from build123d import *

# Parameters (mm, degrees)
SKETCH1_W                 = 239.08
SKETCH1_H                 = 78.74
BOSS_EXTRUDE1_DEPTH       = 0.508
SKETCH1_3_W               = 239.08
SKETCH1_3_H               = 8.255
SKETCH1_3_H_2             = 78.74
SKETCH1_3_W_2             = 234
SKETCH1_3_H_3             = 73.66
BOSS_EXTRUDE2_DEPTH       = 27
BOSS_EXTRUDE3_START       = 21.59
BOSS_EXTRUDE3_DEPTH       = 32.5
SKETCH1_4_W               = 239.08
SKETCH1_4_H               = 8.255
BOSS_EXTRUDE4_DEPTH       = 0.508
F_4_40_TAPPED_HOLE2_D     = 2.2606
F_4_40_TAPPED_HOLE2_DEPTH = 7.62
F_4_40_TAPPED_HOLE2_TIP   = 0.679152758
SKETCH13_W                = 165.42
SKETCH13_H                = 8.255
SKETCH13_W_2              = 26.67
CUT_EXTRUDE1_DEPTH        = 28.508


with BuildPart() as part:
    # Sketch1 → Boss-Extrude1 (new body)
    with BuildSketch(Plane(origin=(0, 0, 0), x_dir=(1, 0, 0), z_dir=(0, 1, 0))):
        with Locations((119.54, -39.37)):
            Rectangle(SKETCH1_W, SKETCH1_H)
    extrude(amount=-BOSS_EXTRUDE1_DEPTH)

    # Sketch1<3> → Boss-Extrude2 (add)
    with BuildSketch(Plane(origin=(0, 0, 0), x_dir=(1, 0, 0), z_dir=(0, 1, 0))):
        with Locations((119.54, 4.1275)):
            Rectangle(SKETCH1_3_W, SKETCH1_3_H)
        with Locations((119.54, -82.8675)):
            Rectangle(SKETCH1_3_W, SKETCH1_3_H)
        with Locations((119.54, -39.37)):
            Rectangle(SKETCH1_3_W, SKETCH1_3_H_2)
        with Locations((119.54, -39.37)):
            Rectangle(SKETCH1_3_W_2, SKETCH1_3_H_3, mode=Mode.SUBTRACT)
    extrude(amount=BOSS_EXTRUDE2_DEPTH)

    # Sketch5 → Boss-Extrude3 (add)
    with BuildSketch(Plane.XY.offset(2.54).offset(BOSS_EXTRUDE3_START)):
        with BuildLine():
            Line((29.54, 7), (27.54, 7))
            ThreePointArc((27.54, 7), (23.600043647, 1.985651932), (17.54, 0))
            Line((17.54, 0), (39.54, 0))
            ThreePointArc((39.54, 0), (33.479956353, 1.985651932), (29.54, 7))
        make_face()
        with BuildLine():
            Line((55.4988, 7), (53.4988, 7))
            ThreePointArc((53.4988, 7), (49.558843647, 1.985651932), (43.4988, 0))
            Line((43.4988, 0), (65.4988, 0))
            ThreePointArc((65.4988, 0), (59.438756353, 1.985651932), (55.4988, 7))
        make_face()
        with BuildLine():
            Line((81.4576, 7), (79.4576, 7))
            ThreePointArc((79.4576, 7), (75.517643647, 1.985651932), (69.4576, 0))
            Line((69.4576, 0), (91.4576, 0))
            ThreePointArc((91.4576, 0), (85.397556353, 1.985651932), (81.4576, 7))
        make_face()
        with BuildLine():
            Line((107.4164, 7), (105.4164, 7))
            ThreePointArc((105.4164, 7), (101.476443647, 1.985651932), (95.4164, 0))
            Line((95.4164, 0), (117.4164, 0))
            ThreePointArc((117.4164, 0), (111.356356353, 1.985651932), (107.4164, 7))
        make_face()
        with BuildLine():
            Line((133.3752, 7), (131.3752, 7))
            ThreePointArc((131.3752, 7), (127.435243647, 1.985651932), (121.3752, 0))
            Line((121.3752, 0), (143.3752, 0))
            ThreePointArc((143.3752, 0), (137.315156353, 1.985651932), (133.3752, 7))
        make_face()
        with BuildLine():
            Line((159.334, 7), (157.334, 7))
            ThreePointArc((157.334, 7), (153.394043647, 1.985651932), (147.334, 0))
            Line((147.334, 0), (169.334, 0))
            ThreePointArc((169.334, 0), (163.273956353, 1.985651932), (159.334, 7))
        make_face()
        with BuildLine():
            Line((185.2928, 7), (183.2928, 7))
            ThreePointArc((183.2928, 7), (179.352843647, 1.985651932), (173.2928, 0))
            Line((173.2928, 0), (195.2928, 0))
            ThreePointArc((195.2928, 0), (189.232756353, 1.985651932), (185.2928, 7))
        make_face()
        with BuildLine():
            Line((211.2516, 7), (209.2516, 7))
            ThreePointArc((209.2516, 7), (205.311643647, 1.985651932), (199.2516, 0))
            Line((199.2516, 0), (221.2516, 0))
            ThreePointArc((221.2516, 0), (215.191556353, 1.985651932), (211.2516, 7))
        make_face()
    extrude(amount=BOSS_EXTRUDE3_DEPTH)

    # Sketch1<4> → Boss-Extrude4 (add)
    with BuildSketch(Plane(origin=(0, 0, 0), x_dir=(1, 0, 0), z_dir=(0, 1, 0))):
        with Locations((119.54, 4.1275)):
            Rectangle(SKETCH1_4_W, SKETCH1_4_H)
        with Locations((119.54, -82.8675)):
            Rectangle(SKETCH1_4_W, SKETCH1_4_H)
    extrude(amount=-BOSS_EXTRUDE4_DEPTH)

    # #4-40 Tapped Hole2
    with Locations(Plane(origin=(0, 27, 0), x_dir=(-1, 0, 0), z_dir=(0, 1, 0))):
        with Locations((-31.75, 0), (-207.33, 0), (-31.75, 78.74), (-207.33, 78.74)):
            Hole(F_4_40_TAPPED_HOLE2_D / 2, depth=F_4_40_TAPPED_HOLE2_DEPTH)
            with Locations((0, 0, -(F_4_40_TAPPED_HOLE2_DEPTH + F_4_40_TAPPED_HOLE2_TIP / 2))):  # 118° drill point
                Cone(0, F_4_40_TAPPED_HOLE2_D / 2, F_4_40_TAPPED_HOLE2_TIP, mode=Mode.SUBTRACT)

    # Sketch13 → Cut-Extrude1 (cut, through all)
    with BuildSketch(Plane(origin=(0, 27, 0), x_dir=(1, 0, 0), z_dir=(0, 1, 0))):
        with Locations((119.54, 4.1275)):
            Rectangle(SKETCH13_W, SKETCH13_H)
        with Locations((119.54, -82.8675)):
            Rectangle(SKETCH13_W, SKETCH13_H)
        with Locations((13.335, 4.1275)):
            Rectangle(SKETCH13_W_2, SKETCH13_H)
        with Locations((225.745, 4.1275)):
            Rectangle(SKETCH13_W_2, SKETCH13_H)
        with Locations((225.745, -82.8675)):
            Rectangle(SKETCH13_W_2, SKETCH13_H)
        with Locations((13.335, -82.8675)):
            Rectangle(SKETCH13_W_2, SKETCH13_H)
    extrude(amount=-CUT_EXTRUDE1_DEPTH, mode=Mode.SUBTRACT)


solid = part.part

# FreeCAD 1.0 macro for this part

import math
import FreeCAD as App
import Part
import Sketcher
from FreeCAD import Vector
Q = App.Units.Quantity


def add_polygon(sketch, points):
    """Adds a closed chain of lines whose ends are joined by coincident constraints."""
    first, n = sketch.GeometryCount, len(points)
    for a, b in zip(points, points[1:] + points[:1]):
        sketch.addGeometry(Part.LineSegment(App.Vector(*a, 0), App.Vector(*b, 0)), False)
    for i in range(n):
        sketch.addConstraint(Sketcher.Constraint("Coincident", first + i, 2, first + (i + 1) % n, 1))

doc = App.newDocument("Part")
body = doc.addObject("PartDesign::Body", "Body")

sketch1 = body.newObject("Sketcher::SketchObject", "Sketch")
sketch1.AttachmentSupport = (doc.getObject("XZ_Plane"), [""])
sketch1.MapMode = "FlatFace"
add_polygon(sketch1, [(0, 0), (0, 79), (239, 79), (239, 0)])
sketch1.addConstraint(Sketcher.Constraint("Vertical", 0))
sketch1.addConstraint(Sketcher.Constraint("Horizontal", 1))
sketch1.addConstraint(Sketcher.Constraint("Vertical", 2))
sketch1.addConstraint(Sketcher.Constraint("Horizontal", 3))
sketch1.addConstraint(Sketcher.Constraint("Coincident", 3, 2, -1, 1))
sketch1.addConstraint(Sketcher.Constraint("DistanceY", 0, 1, 0, 2, Q("3.1 in")))
sketch1.addConstraint(Sketcher.Constraint("DistanceX", 1, 1, 1, 2, 239.08))
pad1 = body.newObject("PartDesign::Pad", "Pad")
pad1.Profile = sketch1
pad1.Length = Q("0.02 in")

sketch2 = body.newObject("Sketcher::SketchObject", "Sketch001")
sketch2.AttachmentSupport = (doc.getObject("XZ_Plane"), [""])
sketch2.MapMode = "FlatFace"
add_polygon(sketch2, [(0, -8), (0, 87), (239, 87), (239, -8)])
add_polygon(sketch2, [(237, 76), (3, 76), (3, 3), (237, 3)])
sketch2.addConstraint(Sketcher.Constraint("Vertical", 0))
sketch2.addConstraint(Sketcher.Constraint("Horizontal", 1))
sketch2.addConstraint(Sketcher.Constraint("Vertical", 2))
sketch2.addConstraint(Sketcher.Constraint("Horizontal", 3))
sketch2.addConstraint(Sketcher.Constraint("Horizontal", 4))
sketch2.addConstraint(Sketcher.Constraint("Vertical", 5))
sketch2.addConstraint(Sketcher.Constraint("Horizontal", 6))
sketch2.addConstraint(Sketcher.Constraint("Vertical", 7))
sketch2.addConstraint(Sketcher.Constraint("PointOnObject", 0, 2, -2))
sketch2.addConstraint(Sketcher.Constraint("DistanceY", 5, 2, 5, 1, Q("2.9 in")))
sketch2.addConstraint(Sketcher.Constraint("DistanceY", -1, 1, 4, 2, Q("3 in")))
sketch2.addConstraint(Sketcher.Constraint("DistanceY", 0, 1, 0, 2, Q("3.75 in")))
sketch2.addConstraint(Sketcher.Constraint("DistanceX", -1, 1, 4, 2, Q("0.1 in")))
sketch2.addConstraint(Sketcher.Constraint("DistanceX", 6, 2, 2, 2, Q("0.1 in")))
sketch2.addConstraint(Sketcher.Constraint("DistanceY", -1, 1, 0, 2, Q("3.425 in")))
sketch2.addConstraint(Sketcher.Constraint("DistanceX", 1, 1, 1, 2, 239.08))
pad2 = body.newObject("PartDesign::Pad", "Pad001")
pad2.Profile = sketch2
pad2.Length = 27
pad2.Reversed = True

sketch3 = body.newObject("Sketcher::SketchObject", "Sketch002")
sketch3.AttachmentSupport = (doc.getObject("XY_Plane"), [""])
sketch3.MapMode = "FlatFace"
sketch3.AttachmentOffset = App.Placement(Vector(0, 0, 0.95 * 25.4), App.Rotation())
sketch3.addGeometry(Part.LineSegment(Vector(29.5, 7, 0), Vector(27.5, 7, 0)), False)
sketch3.addGeometry(Part.ArcOfCircle(Part.Circle(Vector(17.3, 11, 0), Vector(0, 0, 1), 11), math.radians(-89), math.radians(-21)), False)
sketch3.addGeometry(Part.LineSegment(Vector(17.5, 0, 0), Vector(39.5, 0, 0)), False)
sketch3.addGeometry(Part.ArcOfCircle(Part.Circle(Vector(39.8, 11, 0), Vector(0, 0, 1), 11), math.radians(-159), math.radians(-91)), False)
sketch3.addGeometry(Part.LineSegment(Vector(55.5, 7, 0), Vector(53.5, 7, 0)), False)
sketch3.addGeometry(Part.ArcOfCircle(Part.Circle(Vector(43.3, 11, 0), Vector(0, 0, 1), 11), math.radians(-89), math.radians(-21)), False)
sketch3.addGeometry(Part.LineSegment(Vector(43.5, 0, 0), Vector(65.5, 0, 0)), False)
sketch3.addGeometry(Part.ArcOfCircle(Part.Circle(Vector(65.7, 11, 0), Vector(0, 0, 1), 11), math.radians(-159), math.radians(-91)), False)
sketch3.addGeometry(Part.LineSegment(Vector(81.5, 7, 0), Vector(79.5, 7, 0)), False)
sketch3.addGeometry(Part.ArcOfCircle(Part.Circle(Vector(69.2, 11, 0), Vector(0, 0, 1), 11), math.radians(-89), math.radians(-21)), False)
sketch3.addGeometry(Part.LineSegment(Vector(69.5, 0, 0), Vector(91.5, 0, 0)), False)
sketch3.addGeometry(Part.ArcOfCircle(Part.Circle(Vector(91.7, 11, 0), Vector(0, 0, 1), 11), math.radians(-159), math.radians(-91)), False)
sketch3.addGeometry(Part.LineSegment(Vector(107.4, 7, 0), Vector(105.4, 7, 0)), False)
sketch3.addGeometry(Part.ArcOfCircle(Part.Circle(Vector(95.2, 11, 0), Vector(0, 0, 1), 11), math.radians(-89), math.radians(-21)), False)
sketch3.addGeometry(Part.LineSegment(Vector(95.4, 0, 0), Vector(117.4, 0, 0)), False)
sketch3.addGeometry(Part.ArcOfCircle(Part.Circle(Vector(117.7, 11, 0), Vector(0, 0, 1), 11), math.radians(-159), math.radians(-91)), False)
sketch3.addGeometry(Part.LineSegment(Vector(133.4, 7, 0), Vector(131.4, 7, 0)), False)
sketch3.addGeometry(Part.ArcOfCircle(Part.Circle(Vector(121.1, 11, 0), Vector(0, 0, 1), 11), math.radians(-89), math.radians(-21)), False)
sketch3.addGeometry(Part.LineSegment(Vector(121.4, 0, 0), Vector(143.4, 0, 0)), False)
sketch3.addGeometry(Part.ArcOfCircle(Part.Circle(Vector(143.6, 11, 0), Vector(0, 0, 1), 11), math.radians(-159), math.radians(-91)), False)
sketch3.addGeometry(Part.LineSegment(Vector(159.3, 7, 0), Vector(157.3, 7, 0)), False)
sketch3.addGeometry(Part.ArcOfCircle(Part.Circle(Vector(147.1, 11, 0), Vector(0, 0, 1), 11), math.radians(-89), math.radians(-21)), False)
sketch3.addGeometry(Part.LineSegment(Vector(147.3, 0, 0), Vector(169.3, 0, 0)), False)
sketch3.addGeometry(Part.ArcOfCircle(Part.Circle(Vector(169.6, 11, 0), Vector(0, 0, 1), 11), math.radians(-159), math.radians(-91)), False)
sketch3.addGeometry(Part.LineSegment(Vector(185.3, 7, 0), Vector(183.3, 7, 0)), False)
sketch3.addGeometry(Part.ArcOfCircle(Part.Circle(Vector(173, 11, 0), Vector(0, 0, 1), 11), math.radians(-89), math.radians(-21)), False)
sketch3.addGeometry(Part.LineSegment(Vector(173.3, 0, 0), Vector(195.3, 0, 0)), False)
sketch3.addGeometry(Part.ArcOfCircle(Part.Circle(Vector(195.5, 11, 0), Vector(0, 0, 1), 11), math.radians(-159), math.radians(-91)), False)
sketch3.addGeometry(Part.LineSegment(Vector(211.3, 7, 0), Vector(209.3, 7, 0)), False)
sketch3.addGeometry(Part.ArcOfCircle(Part.Circle(Vector(199, 11, 0), Vector(0, 0, 1), 11), math.radians(-89), math.radians(-21)), False)
sketch3.addGeometry(Part.LineSegment(Vector(199.3, 0, 0), Vector(221.3, 0, 0)), False)
sketch3.addGeometry(Part.ArcOfCircle(Part.Circle(Vector(221.5, 11, 0), Vector(0, 0, 1), 11), math.radians(-159), math.radians(-91)), False)
sketch3.addConstraint(Sketcher.Constraint("Coincident", 0, 2, 1, 2))
sketch3.addConstraint(Sketcher.Constraint("Coincident", 1, 1, 2, 1))
sketch3.addConstraint(Sketcher.Constraint("Coincident", 2, 2, 3, 2))
sketch3.addConstraint(Sketcher.Constraint("Coincident", 3, 1, 0, 1))
sketch3.addConstraint(Sketcher.Constraint("Coincident", 4, 2, 5, 2))
sketch3.addConstraint(Sketcher.Constraint("Coincident", 5, 1, 6, 1))
sketch3.addConstraint(Sketcher.Constraint("Coincident", 6, 2, 7, 2))
sketch3.addConstraint(Sketcher.Constraint("Coincident", 7, 1, 4, 1))
sketch3.addConstraint(Sketcher.Constraint("Coincident", 8, 2, 9, 2))
sketch3.addConstraint(Sketcher.Constraint("Coincident", 9, 1, 10, 1))
sketch3.addConstraint(Sketcher.Constraint("Coincident", 10, 2, 11, 2))
sketch3.addConstraint(Sketcher.Constraint("Coincident", 11, 1, 8, 1))
sketch3.addConstraint(Sketcher.Constraint("Coincident", 12, 2, 13, 2))
sketch3.addConstraint(Sketcher.Constraint("Coincident", 13, 1, 14, 1))
sketch3.addConstraint(Sketcher.Constraint("Coincident", 14, 2, 15, 2))
sketch3.addConstraint(Sketcher.Constraint("Coincident", 15, 1, 12, 1))
sketch3.addConstraint(Sketcher.Constraint("Coincident", 16, 2, 17, 2))
sketch3.addConstraint(Sketcher.Constraint("Coincident", 17, 1, 18, 1))
sketch3.addConstraint(Sketcher.Constraint("Coincident", 18, 2, 19, 2))
sketch3.addConstraint(Sketcher.Constraint("Coincident", 19, 1, 16, 1))
sketch3.addConstraint(Sketcher.Constraint("Coincident", 20, 2, 21, 2))
sketch3.addConstraint(Sketcher.Constraint("Coincident", 21, 1, 22, 1))
sketch3.addConstraint(Sketcher.Constraint("Coincident", 22, 2, 23, 2))
sketch3.addConstraint(Sketcher.Constraint("Coincident", 23, 1, 20, 1))
sketch3.addConstraint(Sketcher.Constraint("Coincident", 24, 2, 25, 2))
sketch3.addConstraint(Sketcher.Constraint("Coincident", 25, 1, 26, 1))
sketch3.addConstraint(Sketcher.Constraint("Coincident", 26, 2, 27, 2))
sketch3.addConstraint(Sketcher.Constraint("Coincident", 27, 1, 24, 1))
sketch3.addConstraint(Sketcher.Constraint("Coincident", 28, 2, 29, 2))
sketch3.addConstraint(Sketcher.Constraint("Coincident", 29, 1, 30, 1))
sketch3.addConstraint(Sketcher.Constraint("Coincident", 30, 2, 31, 2))
sketch3.addConstraint(Sketcher.Constraint("Coincident", 31, 1, 28, 1))
sketch3.addConstraint(Sketcher.Constraint("Horizontal", 0))
sketch3.addConstraint(Sketcher.Constraint("Horizontal", 2))
sketch3.addConstraint(Sketcher.Constraint("Horizontal", 4))
sketch3.addConstraint(Sketcher.Constraint("Horizontal", 6))
sketch3.addConstraint(Sketcher.Constraint("Horizontal", 8))
sketch3.addConstraint(Sketcher.Constraint("Horizontal", 10))
sketch3.addConstraint(Sketcher.Constraint("Horizontal", 12))
sketch3.addConstraint(Sketcher.Constraint("Horizontal", 14))
sketch3.addConstraint(Sketcher.Constraint("Horizontal", 16))
sketch3.addConstraint(Sketcher.Constraint("Horizontal", 18))
sketch3.addConstraint(Sketcher.Constraint("Horizontal", 20))
sketch3.addConstraint(Sketcher.Constraint("Horizontal", 22))
sketch3.addConstraint(Sketcher.Constraint("Horizontal", 24))
sketch3.addConstraint(Sketcher.Constraint("Horizontal", 26))
sketch3.addConstraint(Sketcher.Constraint("Horizontal", 28))
sketch3.addConstraint(Sketcher.Constraint("Horizontal", 30))
sketch3.addConstraint(Sketcher.Constraint("Equal", 1, 3))
sketch3.addConstraint(Sketcher.Constraint("Equal", 3, 5))
sketch3.addConstraint(Sketcher.Constraint("Equal", 5, 7))
sketch3.addConstraint(Sketcher.Constraint("Equal", 7, 9))
sketch3.addConstraint(Sketcher.Constraint("Equal", 9, 11))
sketch3.addConstraint(Sketcher.Constraint("Equal", 11, 13))
sketch3.addConstraint(Sketcher.Constraint("Equal", 13, 15))
sketch3.addConstraint(Sketcher.Constraint("Equal", 15, 17))
sketch3.addConstraint(Sketcher.Constraint("Equal", 17, 19))
sketch3.addConstraint(Sketcher.Constraint("Equal", 19, 21))
sketch3.addConstraint(Sketcher.Constraint("Equal", 21, 23))
sketch3.addConstraint(Sketcher.Constraint("Equal", 23, 25))
sketch3.addConstraint(Sketcher.Constraint("Equal", 25, 27))
sketch3.addConstraint(Sketcher.Constraint("Equal", 27, 29))
sketch3.addConstraint(Sketcher.Constraint("Equal", 29, 31))
sketch3.addConstraint(Sketcher.Constraint("PointOnObject", 1, 1, -1))
sketch3.addConstraint(Sketcher.Constraint("PointOnObject", 5, 1, -1))
sketch3.addConstraint(Sketcher.Constraint("PointOnObject", 9, 1, -1))
sketch3.addConstraint(Sketcher.Constraint("PointOnObject", 13, 1, -1))
sketch3.addConstraint(Sketcher.Constraint("PointOnObject", 17, 1, -1))
sketch3.addConstraint(Sketcher.Constraint("PointOnObject", 21, 1, -1))
sketch3.addConstraint(Sketcher.Constraint("PointOnObject", 25, 1, -1))
sketch3.addConstraint(Sketcher.Constraint("PointOnObject", 29, 1, -1))
sketch3.addConstraint(Sketcher.Constraint("Horizontal", 1, 3, 3, 3))
sketch3.addConstraint(Sketcher.Constraint("Horizontal", 3, 3, 5, 3))
sketch3.addConstraint(Sketcher.Constraint("Horizontal", 5, 3, 7, 3))
sketch3.addConstraint(Sketcher.Constraint("Horizontal", 7, 3, 9, 3))
sketch3.addConstraint(Sketcher.Constraint("Horizontal", 9, 3, 11, 3))
sketch3.addConstraint(Sketcher.Constraint("Horizontal", 11, 3, 13, 3))
sketch3.addConstraint(Sketcher.Constraint("Horizontal", 13, 3, 15, 3))
sketch3.addConstraint(Sketcher.Constraint("Horizontal", 15, 3, 17, 3))
sketch3.addConstraint(Sketcher.Constraint("Horizontal", 17, 3, 19, 3))
sketch3.addConstraint(Sketcher.Constraint("Horizontal", 19, 3, 21, 3))
sketch3.addConstraint(Sketcher.Constraint("Horizontal", 21, 3, 23, 3))
sketch3.addConstraint(Sketcher.Constraint("Horizontal", 23, 3, 25, 3))
sketch3.addConstraint(Sketcher.Constraint("Horizontal", 25, 3, 27, 3))
sketch3.addConstraint(Sketcher.Constraint("Horizontal", 27, 3, 29, 3))
sketch3.addConstraint(Sketcher.Constraint("Horizontal", 29, 3, 31, 3))
sketch3.addConstraint(Sketcher.Constraint("Horizontal", 3, 1, 4, 2))
sketch3.addConstraint(Sketcher.Constraint("Horizontal", 7, 1, 8, 2))
sketch3.addConstraint(Sketcher.Constraint("Horizontal", 11, 1, 12, 2))
sketch3.addConstraint(Sketcher.Constraint("Horizontal", 15, 1, 16, 2))
sketch3.addConstraint(Sketcher.Constraint("Horizontal", 19, 1, 20, 2))
sketch3.addConstraint(Sketcher.Constraint("Horizontal", 23, 1, 24, 2))
sketch3.addConstraint(Sketcher.Constraint("Horizontal", 27, 1, 28, 2))
sketch3.addConstraint(Sketcher.Constraint("Equal", 0, 4))
sketch3.addConstraint(Sketcher.Constraint("Equal", 4, 8))
sketch3.addConstraint(Sketcher.Constraint("Equal", 8, 12))
sketch3.addConstraint(Sketcher.Constraint("Equal", 12, 16))
sketch3.addConstraint(Sketcher.Constraint("Equal", 16, 20))
sketch3.addConstraint(Sketcher.Constraint("Equal", 20, 24))
sketch3.addConstraint(Sketcher.Constraint("Equal", 24, 28))
sketch3.addConstraint(Sketcher.Constraint("Radius", 1, 11.0))
sketch3.addConstraint(Sketcher.Constraint("DistanceX", 1, 3, 5, 3, Q("1.022 in")))
sketch3.addConstraint(Sketcher.Constraint("DistanceX", 5, 3, 9, 3, Q("1.022 in")))
sketch3.addConstraint(Sketcher.Constraint("DistanceX", 9, 3, 13, 3, Q("1.022 in")))
sketch3.addConstraint(Sketcher.Constraint("DistanceX", 13, 3, 17, 3, Q("1.022 in")))
sketch3.addConstraint(Sketcher.Constraint("DistanceX", 17, 3, 21, 3, Q("1.022 in")))
sketch3.addConstraint(Sketcher.Constraint("DistanceX", 21, 3, 25, 3, Q("1.022 in")))
sketch3.addConstraint(Sketcher.Constraint("DistanceX", 25, 3, 29, 3, Q("1.022 in")))
sketch3.addConstraint(Sketcher.Constraint("DistanceX", 0, 2, 0, 1, 2.0))
sketch3.addConstraint(Sketcher.Constraint("DistanceX", 2, 1, 2, 2, 22.0))
sketch3.addConstraint(Sketcher.Constraint("DistanceX", -1, 1, 0, 2, 27.54))
sketch3.addConstraint(Sketcher.Constraint("DistanceY", -1, 1, 0, 2, 7.0))
pad3 = body.newObject("PartDesign::Pad", "Pad002")
pad3.Profile = sketch3
pad3.Length = 32.5

sketch4 = body.newObject("Sketcher::SketchObject", "Sketch003")
sketch4.AttachmentSupport = (doc.getObject("XZ_Plane"), [""])
sketch4.MapMode = "FlatFace"
add_polygon(sketch4, [(0, -8), (0, 0), (239, 0), (239, -8)])
add_polygon(sketch4, [(0, 79), (0, 87), (239, 87), (239, 79)])
sketch4.addConstraint(Sketcher.Constraint("Vertical", 0))
sketch4.addConstraint(Sketcher.Constraint("Horizontal", 1))
sketch4.addConstraint(Sketcher.Constraint("Vertical", 2))
sketch4.addConstraint(Sketcher.Constraint("Horizontal", 3))
sketch4.addConstraint(Sketcher.Constraint("Vertical", 4))
sketch4.addConstraint(Sketcher.Constraint("Horizontal", 5))
sketch4.addConstraint(Sketcher.Constraint("Vertical", 6))
sketch4.addConstraint(Sketcher.Constraint("Horizontal", 7))
sketch4.addConstraint(Sketcher.Constraint("Coincident", 0, 2, -1, 1))
sketch4.addConstraint(Sketcher.Constraint("PointOnObject", 4, 2, -2))
sketch4.addConstraint(Sketcher.Constraint("Vertical", 2, 2, 5, 2))
sketch4.addConstraint(Sketcher.Constraint("Equal", 2, 4))
sketch4.addConstraint(Sketcher.Constraint("DistanceY", -1, 1, 6, 2, Q("3.1 in")))
sketch4.addConstraint(Sketcher.Constraint("DistanceY", 0, 1, 0, 2, Q("0.325 in")))
sketch4.addConstraint(Sketcher.Constraint("DistanceX", 1, 1, 1, 2, 239.08))
pad4 = body.newObject("PartDesign::Pad", "Pad003")
pad4.Profile = sketch4
pad4.Length = Q("0.02 in")

sketch5 = body.newObject("Sketcher::SketchObject", "Sketch004")
sketch5.AttachmentSupport = (doc.getObject("XZ_Plane"), [""])
sketch5.MapMode = "FlatFace"
sketch5.AttachmentOffset = App.Placement(Vector(0, 0, -27), App.Rotation())
sketch5.addGeometry(Part.Circle(Vector(31.8, 0, 0), Vector(0, 0, 1), 1.1), False)
sketch5.addGeometry(Part.Circle(Vector(207.3, 0, 0), Vector(0, 0, 1), 1.1), False)
sketch5.addGeometry(Part.Circle(Vector(31.8, 78.7, 0), Vector(0, 0, 1), 1.1), False)
sketch5.addGeometry(Part.Circle(Vector(207.3, 78.7, 0), Vector(0, 0, 1), 1.1), False)
sketch5.addConstraint(Sketcher.Constraint("Equal", 0, 1))
sketch5.addConstraint(Sketcher.Constraint("Equal", 1, 2))
sketch5.addConstraint(Sketcher.Constraint("Equal", 2, 3))
sketch5.addConstraint(Sketcher.Constraint("PointOnObject", 0, 3, -1))
sketch5.addConstraint(Sketcher.Constraint("PointOnObject", 1, 3, -1))
sketch5.addConstraint(Sketcher.Constraint("Horizontal", 2, 3, 3, 3))
sketch5.addConstraint(Sketcher.Constraint("Vertical", 0, 3, 2, 3))
sketch5.addConstraint(Sketcher.Constraint("Vertical", 1, 3, 3, 3))
sketch5.addConstraint(Sketcher.Constraint("Diameter", 0, Q("0.089 in")))
sketch5.addConstraint(Sketcher.Constraint("DistanceY", -1, 1, 2, 3, Q("3.1 in")))
sketch5.addConstraint(Sketcher.Constraint("DistanceX", -1, 1, 0, 3, Q("1.25 in")))
sketch5.addConstraint(Sketcher.Constraint("DistanceX", -1, 1, 1, 3, 207.33))
doc.recompute()
hole = body.newObject("PartDesign::Hole", "Hole")
hole.Profile = sketch5
hole.ThreadType = "None"
hole.Diameter = Q("0.089 in")
hole.DepthType = "Dimension"
hole.Depth = Q("0.3 in")
hole.DrillPoint = "Angled"
hole.DrillPointAngle = 118
hole.Reversed = True

sketch6 = body.newObject("Sketcher::SketchObject", "Sketch005")
sketch6.AttachmentSupport = (doc.getObject("XZ_Plane"), [""])
sketch6.MapMode = "FlatFace"
sketch6.AttachmentOffset = App.Placement(Vector(0, 0, -27), App.Rotation())
add_polygon(sketch6, [(37, -8), (37, 0), (202, 0), (202, -8)])
add_polygon(sketch6, [(37, 79), (37, 87), (202, 87), (202, 79)])
add_polygon(sketch6, [(0, -8), (0, 0), (27, 0), (27, -8)])
add_polygon(sketch6, [(212, -8), (212, 0), (239, 0), (239, -8)])
add_polygon(sketch6, [(212, 79), (212, 87), (239, 87), (239, 79)])
add_polygon(sketch6, [(0, 79), (0, 87), (27, 87), (27, 79)])
sketch6.addConstraint(Sketcher.Constraint("Vertical", 0))
sketch6.addConstraint(Sketcher.Constraint("Horizontal", 1))
sketch6.addConstraint(Sketcher.Constraint("Vertical", 2))
sketch6.addConstraint(Sketcher.Constraint("Horizontal", 3))
sketch6.addConstraint(Sketcher.Constraint("Vertical", 4))
sketch6.addConstraint(Sketcher.Constraint("Horizontal", 5))
sketch6.addConstraint(Sketcher.Constraint("Vertical", 6))
sketch6.addConstraint(Sketcher.Constraint("Horizontal", 7))
sketch6.addConstraint(Sketcher.Constraint("Vertical", 8))
sketch6.addConstraint(Sketcher.Constraint("Horizontal", 9))
sketch6.addConstraint(Sketcher.Constraint("Vertical", 10))
sketch6.addConstraint(Sketcher.Constraint("Horizontal", 11))
sketch6.addConstraint(Sketcher.Constraint("Vertical", 12))
sketch6.addConstraint(Sketcher.Constraint("Horizontal", 13))
sketch6.addConstraint(Sketcher.Constraint("Vertical", 14))
sketch6.addConstraint(Sketcher.Constraint("Horizontal", 15))
sketch6.addConstraint(Sketcher.Constraint("Vertical", 16))
sketch6.addConstraint(Sketcher.Constraint("Horizontal", 17))
sketch6.addConstraint(Sketcher.Constraint("Vertical", 18))
sketch6.addConstraint(Sketcher.Constraint("Horizontal", 19))
sketch6.addConstraint(Sketcher.Constraint("Vertical", 20))
sketch6.addConstraint(Sketcher.Constraint("Horizontal", 21))
sketch6.addConstraint(Sketcher.Constraint("Vertical", 22))
sketch6.addConstraint(Sketcher.Constraint("Horizontal", 23))
sketch6.addConstraint(Sketcher.Constraint("Coincident", 8, 2, -1, 1))
sketch6.addConstraint(Sketcher.Constraint("PointOnObject", 0, 2, -1))
sketch6.addConstraint(Sketcher.Constraint("PointOnObject", 12, 2, -1))
sketch6.addConstraint(Sketcher.Constraint("PointOnObject", 20, 2, -2))
sketch6.addConstraint(Sketcher.Constraint("Horizontal", 3, 2, 10, 2))
sketch6.addConstraint(Sketcher.Constraint("Horizontal", 11, 2, 14, 2))
sketch6.addConstraint(Sketcher.Constraint("Horizontal", 5, 2, 16, 2))
sketch6.addConstraint(Sketcher.Constraint("Horizontal", 7, 2, 18, 2))
sketch6.addConstraint(Sketcher.Constraint("Horizontal", 17, 2, 20, 2))
sketch6.addConstraint(Sketcher.Constraint("Horizontal", 19, 2, 22, 2))
sketch6.addConstraint(Sketcher.Constraint("Vertical", 3, 2, 4, 2))
sketch6.addConstraint(Sketcher.Constraint("Vertical", 2, 2, 5, 2))
sketch6.addConstraint(Sketcher.Constraint("Vertical", 15, 2, 16, 2))
sketch6.addConstraint(Sketcher.Constraint("Vertical", 14, 2, 17, 2))
sketch6.addConstraint(Sketcher.Constraint("Vertical", 10, 2, 21, 2))
sketch6.addConstraint(Sketcher.Constraint("Equal", 11, 13))
sketch6.addConstraint(Sketcher.Constraint("Equal", 2, 4))
sketch6.addConstraint(Sketcher.Constraint("DistanceX", 9, 1, 9, 2, Q("1.05 in")))
sketch6.addConstraint(Sketcher.Constraint("DistanceY", -1, 1, 6, 2, Q("3.1 in")))
sketch6.addConstraint(Sketcher.Constraint("DistanceX", 9, 2, 0, 2, Q("0.4 in")))
sketch6.addConstraint(Sketcher.Constraint("DistanceX", 1, 2, 12, 2, Q("0.4 in")))
sketch6.addConstraint(Sketcher.Constraint("DistanceY", 0, 1, 0, 2, Q("0.325 in")))
sketch6.addConstraint(Sketcher.Constraint("DistanceX", 1, 1, 1, 2, 165.42))
pocket1 = body.newObject("PartDesign::Pocket", "Pocket")
pocket1.Profile = sketch6
pocket1.Type = "ThroughAll"
pocket1.Reversed = True

doc.recompute()
